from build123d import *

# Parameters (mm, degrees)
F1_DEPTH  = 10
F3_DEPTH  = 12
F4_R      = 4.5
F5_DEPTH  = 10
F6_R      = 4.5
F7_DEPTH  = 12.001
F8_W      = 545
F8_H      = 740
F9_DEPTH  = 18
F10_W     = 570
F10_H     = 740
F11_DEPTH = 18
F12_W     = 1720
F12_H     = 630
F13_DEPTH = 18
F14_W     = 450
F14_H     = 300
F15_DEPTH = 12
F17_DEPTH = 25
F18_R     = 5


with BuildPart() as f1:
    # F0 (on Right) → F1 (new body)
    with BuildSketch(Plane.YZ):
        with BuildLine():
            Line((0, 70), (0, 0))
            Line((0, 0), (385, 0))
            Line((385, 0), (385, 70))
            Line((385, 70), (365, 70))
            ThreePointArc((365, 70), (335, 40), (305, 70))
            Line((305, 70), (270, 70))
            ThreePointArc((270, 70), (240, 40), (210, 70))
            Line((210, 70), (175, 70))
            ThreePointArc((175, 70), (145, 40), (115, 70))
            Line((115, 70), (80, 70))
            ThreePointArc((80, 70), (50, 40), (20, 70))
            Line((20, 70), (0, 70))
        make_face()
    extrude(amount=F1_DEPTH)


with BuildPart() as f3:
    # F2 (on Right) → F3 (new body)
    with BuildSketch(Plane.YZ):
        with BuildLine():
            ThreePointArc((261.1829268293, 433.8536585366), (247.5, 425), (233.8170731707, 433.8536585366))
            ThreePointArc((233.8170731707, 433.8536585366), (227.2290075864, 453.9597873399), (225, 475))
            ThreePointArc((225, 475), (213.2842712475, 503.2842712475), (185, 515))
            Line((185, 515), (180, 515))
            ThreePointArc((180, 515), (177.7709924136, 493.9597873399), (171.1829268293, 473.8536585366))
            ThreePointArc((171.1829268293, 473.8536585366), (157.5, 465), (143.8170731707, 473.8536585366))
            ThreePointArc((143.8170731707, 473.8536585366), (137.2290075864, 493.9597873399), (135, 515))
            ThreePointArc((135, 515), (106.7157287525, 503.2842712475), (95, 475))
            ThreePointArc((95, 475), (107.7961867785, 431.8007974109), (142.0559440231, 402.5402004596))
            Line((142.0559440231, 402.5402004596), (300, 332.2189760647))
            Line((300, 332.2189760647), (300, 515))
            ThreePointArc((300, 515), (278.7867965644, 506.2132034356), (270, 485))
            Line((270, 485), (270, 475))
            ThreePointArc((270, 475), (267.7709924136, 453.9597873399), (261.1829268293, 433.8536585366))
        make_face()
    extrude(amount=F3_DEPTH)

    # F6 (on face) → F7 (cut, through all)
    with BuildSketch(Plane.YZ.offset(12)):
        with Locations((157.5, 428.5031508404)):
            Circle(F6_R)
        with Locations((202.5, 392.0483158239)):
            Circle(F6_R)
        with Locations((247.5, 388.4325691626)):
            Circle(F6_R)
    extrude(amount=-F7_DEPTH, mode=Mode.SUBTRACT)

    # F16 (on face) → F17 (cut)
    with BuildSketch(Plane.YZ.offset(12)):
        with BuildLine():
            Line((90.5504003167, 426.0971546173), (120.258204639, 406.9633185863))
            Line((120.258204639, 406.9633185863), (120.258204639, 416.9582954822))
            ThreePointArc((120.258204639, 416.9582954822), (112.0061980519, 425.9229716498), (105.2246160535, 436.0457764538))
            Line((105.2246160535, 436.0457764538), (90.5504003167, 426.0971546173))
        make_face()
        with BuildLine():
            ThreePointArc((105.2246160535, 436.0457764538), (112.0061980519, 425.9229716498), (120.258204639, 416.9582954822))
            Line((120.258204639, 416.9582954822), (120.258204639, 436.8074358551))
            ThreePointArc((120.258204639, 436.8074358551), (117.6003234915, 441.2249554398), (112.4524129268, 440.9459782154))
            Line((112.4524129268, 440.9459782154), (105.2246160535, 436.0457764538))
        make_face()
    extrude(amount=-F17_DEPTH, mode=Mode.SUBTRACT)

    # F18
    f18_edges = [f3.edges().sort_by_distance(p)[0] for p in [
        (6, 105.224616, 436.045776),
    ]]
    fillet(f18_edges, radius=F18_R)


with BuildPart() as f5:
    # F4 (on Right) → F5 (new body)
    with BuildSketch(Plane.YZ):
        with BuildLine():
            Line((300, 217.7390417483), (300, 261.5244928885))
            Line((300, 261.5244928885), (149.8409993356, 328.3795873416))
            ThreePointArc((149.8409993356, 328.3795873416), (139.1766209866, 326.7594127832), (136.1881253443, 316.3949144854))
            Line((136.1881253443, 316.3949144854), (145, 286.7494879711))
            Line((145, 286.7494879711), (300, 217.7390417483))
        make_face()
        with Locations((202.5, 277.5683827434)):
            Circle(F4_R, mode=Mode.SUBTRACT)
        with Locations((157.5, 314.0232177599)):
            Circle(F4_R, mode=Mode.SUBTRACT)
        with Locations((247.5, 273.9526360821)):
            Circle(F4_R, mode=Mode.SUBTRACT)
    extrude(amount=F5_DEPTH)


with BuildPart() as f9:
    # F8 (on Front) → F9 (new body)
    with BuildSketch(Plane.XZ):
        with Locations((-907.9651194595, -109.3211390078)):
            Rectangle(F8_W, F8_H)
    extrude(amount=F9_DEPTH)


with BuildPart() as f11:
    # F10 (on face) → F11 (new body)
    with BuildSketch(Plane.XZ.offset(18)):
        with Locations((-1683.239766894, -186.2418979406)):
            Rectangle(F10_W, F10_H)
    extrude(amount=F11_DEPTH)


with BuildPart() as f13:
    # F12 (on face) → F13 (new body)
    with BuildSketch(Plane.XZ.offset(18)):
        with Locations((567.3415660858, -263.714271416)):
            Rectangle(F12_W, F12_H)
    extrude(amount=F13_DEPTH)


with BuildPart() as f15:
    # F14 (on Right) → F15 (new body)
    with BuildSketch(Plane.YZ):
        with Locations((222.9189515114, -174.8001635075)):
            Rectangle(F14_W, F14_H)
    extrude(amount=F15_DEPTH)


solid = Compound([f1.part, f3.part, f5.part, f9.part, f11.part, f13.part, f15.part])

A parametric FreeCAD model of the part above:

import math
import FreeCAD as App
import Part
import Sketcher

V = App.Vector
Q = App.Units.Quantity


def edges_at(feature, points):
    """Names of the edges that pass closest to the given points."""
    edges = feature.Shape.Edges
    near = lambda p: min(range(len(edges)), key=lambda i: edges[i].distToShape(Part.Vertex(*p))[0])
    return sorted({f"Edge{near(p) + 1}" for p in points})

doc = App.newDocument("Part")
body = doc.addObject("PartDesign::Body", "Body")

# Sketch on YZ plane
sketch1 = body.newObject("Sketcher::SketchObject", "Sketch")
sketch1.AttachmentSupport = (doc.getObject("YZ_Plane"), [""])
sketch1.MapMode = "FlatFace"
sketch1.addGeometry([
    Part.LineSegment(V(0, 70, 0), V(0, 0, 0)),  # 0
    Part.LineSegment(V(0, 0, 0), V(385, 0, 0)),  # 1
    Part.LineSegment(V(385, 0, 0), V(385, 70, 0)),  # 2
    Part.LineSegment(V(385, 70, 0), V(365, 70, 0)),  # 3
    Part.ArcOfCircle(Part.Circle(V(335, 70, 0), V(0, 0, 1), 30), math.radians(180), math.radians(360)),  # 4
    Part.LineSegment(V(305, 70, 0), V(270, 70, 0)),  # 5
    Part.ArcOfCircle(Part.Circle(V(240, 70, 0), V(0, 0, 1), 30), math.radians(180), math.radians(360)),  # 6
    Part.LineSegment(V(210, 70, 0), V(175, 70, 0)),  # 7
    Part.ArcOfCircle(Part.Circle(V(145, 70, 0), V(0, 0, 1), 30), math.radians(180), math.radians(360)),  # 8
    Part.LineSegment(V(115, 70, 0), V(80, 70, 0)),  # 9
    Part.ArcOfCircle(Part.Circle(V(50, 70, 0), V(0, 0, 1), 30), math.radians(180), math.radians(360)),  # 10
    Part.LineSegment(V(20, 70, 0), V(0, 70, 0)),  # 11
], False)
sketch1.addConstraint([
    Sketcher.Constraint("Coincident", 0, 2, 1, 1),
    Sketcher.Constraint("Coincident", 1, 2, 2, 1),
    Sketcher.Constraint("Coincident", 2, 2, 3, 1),
    Sketcher.Constraint("Coincident", 3, 2, 4, 2),
    Sketcher.Constraint("Coincident", 4, 1, 5, 1),
    Sketcher.Constraint("Coincident", 5, 2, 6, 2),
    Sketcher.Constraint("Coincident", 6, 1, 7, 1),
    Sketcher.Constraint("Coincident", 7, 2, 8, 2),
    Sketcher.Constraint("Coincident", 8, 1, 9, 1),
    Sketcher.Constraint("Coincident", 9, 2, 10, 2),
    Sketcher.Constraint("Coincident", 10, 1, 11, 1),
    Sketcher.Constraint("Coincident", 11, 2, 0, 1),
    Sketcher.Constraint("Vertical", 0),
    Sketcher.Constraint("Horizontal", 1),
    Sketcher.Constraint("Vertical", 2),
    Sketcher.Constraint("Horizontal", 3),
    Sketcher.Constraint("Horizontal", 5),
    Sketcher.Constraint("Horizontal", 7),
    Sketcher.Constraint("Horizontal", 9),
    Sketcher.Constraint("Horizontal", 11),
    Sketcher.Constraint("Coincident", 0, 2, -1, 1),
    Sketcher.Constraint("Equal", 4, 6),
    Sketcher.Constraint("Equal", 6, 8),
    Sketcher.Constraint("Equal", 8, 10),
    Sketcher.Constraint("Horizontal", 4, 3, 6, 3),
    Sketcher.Constraint("Horizontal", 6, 3, 8, 3),
    Sketcher.Constraint("Horizontal", 8, 3, 10, 3),
    Sketcher.Constraint("Horizontal", 10, 3, 2, 2),
    Sketcher.Constraint("Horizontal", 3, 2, 4, 1),
    Sketcher.Constraint("Horizontal", 5, 2, 6, 1),
    Sketcher.Constraint("Horizontal", 7, 2, 8, 1),
    Sketcher.Constraint("Horizontal", 9, 2, 10, 1),
    Sketcher.Constraint("Equal", 5, 7),
    Sketcher.Constraint("Equal", 7, 9),
    Sketcher.Constraint("Equal", 3, 11),
    Sketcher.Constraint("Radius", 4, Q("30 mm")),
    Sketcher.Constraint("DistanceX", 1, 1, 1, 2, Q("385 mm")),
    Sketcher.Constraint("DistanceX", 3, 2, 3, 1, Q("20 mm")),
    Sketcher.Constraint("DistanceY", 0, 2, 0, 1, Q("70 mm")),
])
pad1 = body.newObject("PartDesign::Pad", "Pad")
pad1.Profile = sketch1
pad1.Length = 10
body2 = doc.addObject("PartDesign::Body", "Body001")

# Sketch on YZ plane
sketch2 = body2.newObject("Sketcher::SketchObject", "Sketch001")
sketch2.AttachmentSupport = (doc.getObject("YZ_Plane001"), [""])
sketch2.MapMode = "FlatFace"
sketch2.addGeometry([
    Part.ArcOfCircle(Part.Circle(V(248, 440, 0), V(0, 0, 1), 15), math.radians(-156), math.radians(-24)),  # 0
    Part.ArcOfCircle(Part.Circle(V(325, 475, 0), V(0, 0, 1), 100), math.radians(180), math.radians(204)),  # 1
    Part.ArcOfCircle(Part.Circle(V(185, 475, 0), V(0, 0, 1), 40), math.radians(0), math.radians(90)),  # 2
    Part.LineSegment(V(185, 515, 0), V(180, 515, 0)),  # 3
    Part.ArcOfCircle(Part.Circle(V(80, 515, 0), V(0, 0, 1), 100), math.radians(-24), math.radians(0)),  # 4
    Part.ArcOfCircle(Part.Circle(V(158, 480, 0), V(0, 0, 1), 15), math.radians(-156), math.radians(-24)),  # 5
    Part.ArcOfCircle(Part.Circle(V(235, 515, 0), V(0, 0, 1), 100), math.radians(180), math.radians(204)),  # 6
    Part.ArcOfCircle(Part.Circle(V(135, 475, 0), V(0, 0, 1), 40), math.radians(90), math.radians(180)),  # 7
    Part.ArcOfCircle(Part.Circle(V(174, 475, 0), V(0, 0, 1), 79), math.radians(180), math.radians(246)),  # 8
    Part.LineSegment(V(142, 403, 0), V(300, 332, 0)),  # 9
    Part.LineSegment(V(300, 332, 0), V(300, 515, 0)),  # 10
    Part.ArcOfCircle(Part.Circle(V(300, 485, 0), V(0, 0, 1), 30), math.radians(90), math.radians(180)),  # 11
    Part.LineSegment(V(270, 485, 0), V(270, 475, 0)),  # 12
    Part.ArcOfCircle(Part.Circle(V(170, 475, 0), V(0, 0, 1), 100), math.radians(-24), math.radians(0)),  # 13
], False)
sketch2.addConstraint([
    Sketcher.Constraint("Tangent", 0, 1, 1, 2),
    Sketcher.Constraint("Tangent", 1, 1, 2, 1),
    Sketcher.Constraint("Tangent", 2, 2, 3, 1),
    Sketcher.Constraint("Coincident", 3, 2, 4, 2),
    Sketcher.Constraint("Tangent", 4, 1, 5, 2),
    Sketcher.Constraint("Tangent", 5, 1, 6, 2),
    Sketcher.Constraint("Coincident", 6, 1, 7, 1),
    Sketcher.Constraint("Tangent", 7, 2, 8, 1),
    Sketcher.Constraint("Tangent", 8, 2, 9, 1),
    Sketcher.Constraint("Coincident", 9, 2, 10, 1),
    Sketcher.Constraint("Coincident", 10, 2, 11, 1),
    Sketcher.Constraint("Tangent", 11, 2, 12, 1),
    Sketcher.Constraint("Tangent", 12, 2, 13, 2),
    Sketcher.Constraint("Tangent", 13, 1, 0, 2),
    Sketcher.Constraint("Horizontal", 3),
    Sketcher.Constraint("Vertical", 10),
    Sketcher.Constraint("Vertical", 12),
    Sketcher.Constraint("Equal", 1, 4),
    Sketcher.Constraint("Equal", 0, 5),
    Sketcher.Constraint("Equal", 4, 6),
    Sketcher.Constraint("Equal", 2, 7),
    Sketcher.Constraint("Equal", 6, 13),
    Sketcher.Constraint("Horizontal", 1, 3, 2, 3),
    Sketcher.Constraint("Horizontal", 4, 3, 6, 3),
    Sketcher.Constraint("Horizontal", 2, 3, 7, 3),
    Sketcher.Constraint("Horizontal", 7, 3, 8, 3),
    Sketcher.Constraint("Horizontal", 8, 3, 13, 3),
    Sketcher.Constraint("Horizontal", 6, 3, 2, 2),
    Sketcher.Constraint("Horizontal", 6, 1, 10, 2),
    Sketcher.Constraint("Vertical", 7, 3, 6, 1),
    Sketcher.Constraint("Vertical", 11, 3, 9, 2),
    Sketcher.Constraint("Radius", 0, Q("15 mm")),
    Sketcher.Constraint("Radius", 2, Q("40 mm")),
    Sketcher.Constraint("Radius", 11, Q("30 mm")),
    Sketcher.Constraint("DistanceX", 3, 2, 3, 1, Q("5 mm")),
    Sketcher.Constraint("Angle", 9, Q("-24 deg")),
    Sketcher.Constraint("DistanceY", -1, 1, 0, 3, Q("440 mm")),
    Sketcher.Constraint("DistanceY", -1, 1, 1, 3, Q("475 mm")),
    Sketcher.Constraint("DistanceX", -1, 1, 2, 3, Q("185 mm")),
    Sketcher.Constraint("DistanceY", -1, 1, 5, 3, Q("480 mm")),
    Sketcher.Constraint("DistanceX", -1, 1, 7, 3, Q("135 mm")),
    Sketcher.Constraint("Radius", 8, Q("79.317125 mm")),
])
pad2 = body2.newObject("PartDesign::Pad", "Pad001")
pad2.Profile = sketch2
pad2.Length = 12

# Sketch on YZ plane
sketch3 = body2.newObject("Sketcher::SketchObject", "Sketch002")
sketch3.AttachmentSupport = (doc.getObject("YZ_Plane001"), [""])
sketch3.MapMode = "FlatFace"
sketch3.AttachmentOffset = App.Placement(V(0, 0, 12), App.Rotation())
sketch3.addGeometry([
    Part.Circle(V(157.5, 428.5, 0), V(0, 0, 1), 4.5),
    Part.Circle(V(202.5, 392, 0), V(0, 0, 1), 4.5),
    Part.Circle(V(247.5, 388.4, 0), V(0, 0, 1), 4.5),
], False)
sketch3.addConstraint([
    Sketcher.Constraint("Equal", 0, 1),
    Sketcher.Constraint("Equal", 1, 2),
    Sketcher.Constraint("Diameter", 0, Q("9 mm")),
    Sketcher.Constraint("DistanceX", 0, 3, 1, 3, Q("45 mm")),
    Sketcher.Constraint("DistanceX", 1, 3, 2, 3, Q("45 mm")),
    Sketcher.Constraint("DistanceX", -1, 1, 0, 3, Q("157.5 mm")),
    Sketcher.Constraint("DistanceY", -1, 1, 0, 3, Q("428.503151 mm")),
    Sketcher.Constraint("DistanceY", -1, 1, 2, 3, Q("388.432569 mm")),
    Sketcher.Constraint("DistanceY", -1, 1, 1, 3, Q("392.048316 mm")),
])
pocket1 = body2.newObject("PartDesign::Pocket", "Pocket")
pocket1.Profile = sketch3
pocket1.Type = "ThroughAll"

# Sketch on YZ plane
sketch4 = body2.newObject("Sketcher::SketchObject", "Sketch003")
sketch4.AttachmentSupport = (doc.getObject("YZ_Plane001"), [""])
sketch4.MapMode = "FlatFace"
sketch4.AttachmentOffset = App.Placement(V(0, 0, 12), App.Rotation())
sketch4.addGeometry([
    Part.LineSegment(V(91, 426, 0), V(120, 407, 0)),
    Part.LineSegment(V(120, 407, 0), V(120, 437, 0)),
    Part.ArcOfCircle(Part.Circle(V(115, 437, 0), V(0, 0, 1), 5), math.radians(0), math.radians(124)),
    Part.LineSegment(V(112, 441, 0), V(91, 426, 0)),
], False)
sketch4.addConstraint([
    Sketcher.Constraint("Coincident", 0, 2, 1, 1),
    Sketcher.Constraint("Tangent", 1, 2, 2, 1),
    Sketcher.Constraint("Tangent", 2, 2, 3, 1),
    Sketcher.Constraint("Coincident", 3, 2, 0, 1),
    Sketcher.Constraint("Vertical", 1),
    Sketcher.Constraint("Radius", 2, Q("5 mm")),
    Sketcher.Constraint("DistanceX", -1, 1, 3, 2, Q("90.5504 mm")),
    Sketcher.Constraint("DistanceY", 1, 1, 1, 2, Q("29.844117 mm")),
    Sketcher.Constraint("DistanceY", -1, 1, 0, 2, Q("406.963319 mm")),
    Sketcher.Constraint("DistanceY", -1, 1, 2, 2, Q("440.945978 mm")),
    Sketcher.Constraint("DistanceY", 3, 2, 2, 3, Q("10.710281 mm")),
])
pocket2 = body2.newObject("PartDesign::Pocket", "Pocket001")
pocket2.Profile = sketch4
pocket2.Length = 25
doc.recompute()

fillet = body2.newObject("PartDesign::Fillet", "Fillet")
fillet.Base = (pocket2, edges_at(pocket2, [(6, 105.225, 436.046)]))
fillet.Radius = 5
body3 = doc.addObject("PartDesign::Body", "Body002")

# Sketch on YZ plane
sketch5 = body3.newObject("Sketcher::SketchObject", "Sketch004")
sketch5.AttachmentSupport = (doc.getObject("YZ_Plane002"), [""])
sketch5.MapMode = "FlatFace"
sketch5.addGeometry([
    Part.LineSegment(V(300, 217.7, 0), V(300, 261.5, 0)),  # 0
    Part.LineSegment(V(300, 261.5, 0), V(149.8, 328.4, 0)),  # 1
    Part.ArcOfCircle(Part.Circle(V(145.8, 319.2, 0), V(0, 0, 1), 10), math.radians(66), math.radians(197)),  # 2
    Part.LineSegment(V(136.2, 316.4, 0), V(145, 286.7, 0)),  # 3
    Part.LineSegment(V(145, 286.7, 0), V(300, 217.7, 0)),  # 4
    Part.Circle(V(202.5, 277.6, 0), V(0, 0, 1), 4.5),  # 5
    Part.Circle(V(247.5, 274, 0), V(0, 0, 1), 4.5),  # 6
    Part.Circle(V(157.5, 314, 0), V(0, 0, 1), 4.5),  # 7
], False)
sketch5.addConstraint([
    Sketcher.Constraint("Coincident", 0, 2, 1, 1),
    Sketcher.Constraint("Tangent", 1, 2, 2, 1),
    Sketcher.Constraint("Tangent", 2, 2, 3, 1),
    Sketcher.Constraint("Coincident", 3, 2, 4, 1),
    Sketcher.Constraint("Coincident", 4, 2, 0, 1),
    Sketcher.Constraint("Vertical", 0),
    Sketcher.Constraint("Equal", 5, 6),
    Sketcher.Constraint("Equal", 6, 7),
    Sketcher.Constraint("Parallel", 1, 4),
    Sketcher.Constraint("Diameter", 5, Q("9 mm")),
    Sketcher.Constraint("Radius", 2, Q("10 mm")),
    Sketcher.Constraint("Angle", 1, Q("156 deg")),
    Sketcher.Constraint("DistanceX", -1, 1, 0, 2, Q("300 mm")),
    Sketcher.Constraint("DistanceX", -1, 1, 3, 2, Q("145 mm")),
    Sketcher.Constraint("DistanceX", 5, 3, 6, 3, Q("45 mm")),
    Sketcher.Constraint("DistanceX", 7, 3, 5, 3, Q("45 mm")),
    Sketcher.Constraint("DistanceX", -1, 1, 5, 3, Q("202.5 mm")),
    Sketcher.Constraint("DistanceX", -1, 1, 1, 2, Q("149.840999 mm")),
    Sketcher.Constraint("DistanceY", 0, 1, 0, 2, Q("43.785451 mm")),
    Sketcher.Constraint("DistanceY", -1, 1, 4, 2, Q("217.739042 mm")),
    Sketcher.Constraint("DistanceY", 5, 3, 2, 3, Q("41.67575 mm")),
    Sketcher.Constraint("DistanceY", 6, 3, 7, 3, Q("40.070582 mm")),
    Sketcher.Constraint("DistanceY", 7, 3, 1, 2, Q("14.35637 mm")),
])
pad3 = body3.newObject("PartDesign::Pad", "Pad002")
pad3.Profile = sketch5
pad3.Length = 10
body4 = doc.addObject("PartDesign::Body", "Body003")

# Sketch on XZ plane
sketch6 = body4.newObject("Sketcher::SketchObject", "Sketch005")
sketch6.AttachmentSupport = (doc.getObject("XZ_Plane003"), [""])
sketch6.MapMode = "FlatFace"
sketch6.addGeometry([
    Part.LineSegment(V(-1180, 261, 0), V(-1180, -479, 0)),
    Part.LineSegment(V(-1180, -479, 0), V(-635, -479, 0)),
    Part.LineSegment(V(-635, -479, 0), V(-635, 261, 0)),
    Part.LineSegment(V(-635, 261, 0), V(-1180, 261, 0)),
], False)
sketch6.addConstraint([
    Sketcher.Constraint("Coincident", 0, 2, 1, 1),
    Sketcher.Constraint("Coincident", 1, 2, 2, 1),
    Sketcher.Constraint("Coincident", 2, 2, 3, 1),
    Sketcher.Constraint("Coincident", 3, 2, 0, 1),
    Sketcher.Constraint("Vertical", 0),
    Sketcher.Constraint("Horizontal", 1),
    Sketcher.Constraint("Vertical", 2),
    Sketcher.Constraint("Horizontal", 3),
    Sketcher.Constraint("DistanceX", 1, 1, 1, 2, Q("545 mm")),
    Sketcher.Constraint("DistanceY", 0, 2, 0, 1, Q("740 mm")),
    Sketcher.Constraint("DistanceX", 0, 2, -1, 1, Q("1180.465119 mm")),
    Sketcher.Constraint("DistanceY", 0, 2, -1, 1, Q("479.321139 mm")),
])
pad4 = body4.newObject("PartDesign::Pad", "Pad003")
pad4.Profile = sketch6
pad4.Length = 18
body5 = doc.addObject("PartDesign::Body", "Body004")

# Sketch on XZ plane
sketch7 = body5.newObject("Sketcher::SketchObject", "Sketch006")
sketch7.AttachmentSupport = (doc.getObject("XZ_Plane004"), [""])
sketch7.MapMode = "FlatFace"
sketch7.AttachmentOffset = App.Placement(V(0, 0, 18), App.Rotation())
sketch7.addGeometry([
    Part.LineSegment(V(-1968, 184, 0), V(-1968, -556, 0)),
    Part.LineSegment(V(-1968, -556, 0), V(-1398, -556, 0)),
    Part.LineSegment(V(-1398, -556, 0), V(-1398, 184, 0)),
    Part.LineSegment(V(-1398, 184, 0), V(-1968, 184, 0)),
], False)
sketch7.addConstraint([
    Sketcher.Constraint("Coincident", 0, 2, 1, 1),
    Sketcher.Constraint("Coincident", 1, 2, 2, 1),
    Sketcher.Constraint("Coincident", 2, 2, 3, 1),
    Sketcher.Constraint("Coincident", 3, 2, 0, 1),
    Sketcher.Constraint("Vertical", 0),
    Sketcher.Constraint("Horizontal", 1),
    Sketcher.Constraint("Vertical", 2),
    Sketcher.Constraint("Horizontal", 3),
    Sketcher.Constraint("DistanceX", 1, 1, 1, 2, Q("570 mm")),
    Sketcher.Constraint("DistanceY", 0, 2, 0, 1, Q("740 mm")),
    Sketcher.Constraint("DistanceX", 0, 2, -1, 1, Q("1968.239767 mm")),
    Sketcher.Constraint("DistanceY", 0, 2, -1, 1, Q("556.241898 mm")),
])
pad5 = body5.newObject("PartDesign::Pad", "Pad004")
pad5.Profile = sketch7
pad5.Length = 18
body6 = doc.addObject("PartDesign::Body", "Body005")

# Sketch on XZ plane
sketch8 = body6.newObject("Sketcher::SketchObject", "Sketch007")
sketch8.AttachmentSupport = (doc.getObject("XZ_Plane005"), [""])
sketch8.MapMode = "FlatFace"
sketch8.AttachmentOffset = App.Placement(V(0, 0, 18), App.Rotation())
sketch8.addGeometry([
    Part.LineSegment(V(-293, 51, 0), V(-293, -579, 0)),
    Part.LineSegment(V(-293, -579, 0), V(1427, -579, 0)),
    Part.LineSegment(V(1427, -579, 0), V(1427, 51, 0)),
    Part.LineSegment(V(1427, 51, 0), V(-293, 51, 0)),
], False)
sketch8.addConstraint([
    Sketcher.Constraint("Coincident", 0, 2, 1, 1),
    Sketcher.Constraint("Coincident", 1, 2, 2, 1),
    Sketcher.Constraint("Coincident", 2, 2, 3, 1),
    Sketcher.Constraint("Coincident", 3, 2, 0, 1),
    Sketcher.Constraint("Vertical", 0),
    Sketcher.Constraint("Horizontal", 1),
    Sketcher.Constraint("Vertical", 2),
    Sketcher.Constraint("Horizontal", 3),
    Sketcher.Constraint("DistanceX", 1, 1, 1, 2, Q("1720 mm")),
    Sketcher.Constraint("DistanceY", 0, 2, 0, 1, Q("630 mm")),
    Sketcher.Constraint("DistanceY", 0, 2, -1, 1, Q("578.714271 mm")),
    Sketcher.Constraint("DistanceX", 0, 2, -1, 1, Q("292.658434 mm")),
])
pad6 = body6.newObject("PartDesign::Pad", "Pad005")
pad6.Profile = sketch8
pad6.Length = 18
body7 = doc.addObject("PartDesign::Body", "Body006")

# Sketch on YZ plane
sketch9 = body7.newObject("Sketcher::SketchObject", "Sketch008")
sketch9.AttachmentSupport = (doc.getObject("YZ_Plane006"), [""])
sketch9.MapMode = "FlatFace"
sketch9.addGeometry([
    Part.LineSegment(V(-2, -25, 0), V(-2, -325, 0)),
    Part.LineSegment(V(-2, -325, 0), V(448, -325, 0)),
    Part.LineSegment(V(448, -325, 0), V(448, -25, 0)),
    Part.LineSegment(V(448, -25, 0), V(-2, -25, 0)),
], False)
sketch9.addConstraint([
    Sketcher.Constraint("Coincident", 0, 2, 1, 1),
    Sketcher.Constraint("Coincident", 1, 2, 2, 1),
    Sketcher.Constraint("Coincident", 2, 2, 3, 1),
    Sketcher.Constraint("Coincident", 3, 2, 0, 1),
    Sketcher.Constraint("Vertical", 0),
    Sketcher.Constraint("Horizontal", 1),
    Sketcher.Constraint("Vertical", 2),
    Sketcher.Constraint("Horizontal", 3),
    Sketcher.Constraint("DistanceX", 1, 1, 1, 2, Q("450 mm")),
    Sketcher.Constraint("DistanceY", 0, 2, 0, 1, Q("300 mm")),
    Sketcher.Constraint("DistanceX", 0, 2, -1, 1, Q("2.081048 mm")),
    Sketcher.Constraint("DistanceY", 0, 2, -1, 1, Q("324.800164 mm")),
])
pad7 = body7.newObject("PartDesign::Pad", "Pad006")
pad7.Profile = sketch9
pad7.Length = 12

doc.recompute()
